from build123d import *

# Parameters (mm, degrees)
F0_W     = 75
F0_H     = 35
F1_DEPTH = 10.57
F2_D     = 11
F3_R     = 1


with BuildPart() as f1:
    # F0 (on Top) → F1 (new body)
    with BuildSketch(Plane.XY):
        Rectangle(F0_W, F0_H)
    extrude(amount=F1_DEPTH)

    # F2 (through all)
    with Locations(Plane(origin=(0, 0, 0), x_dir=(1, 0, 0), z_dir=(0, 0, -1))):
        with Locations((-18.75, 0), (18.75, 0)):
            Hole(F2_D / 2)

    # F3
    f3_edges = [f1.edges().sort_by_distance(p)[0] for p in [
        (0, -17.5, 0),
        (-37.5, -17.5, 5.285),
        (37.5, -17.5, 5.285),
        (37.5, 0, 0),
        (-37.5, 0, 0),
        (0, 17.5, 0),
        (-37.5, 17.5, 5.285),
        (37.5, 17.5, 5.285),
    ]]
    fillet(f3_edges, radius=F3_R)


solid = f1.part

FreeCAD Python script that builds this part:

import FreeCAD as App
import Part
import Sketcher
from FreeCAD import Vector


def edges_at(feature, points):
    """Names of the edges that pass closest to the given points."""
    edges = feature.Shape.Edges
    near = lambda p: min(range(len(edges)), key=lambda i: edges[i].distToShape(Part.Vertex(*p))[0])
    return sorted({f"Edge{near(p) + 1}" for p in points})


def add_polygon(sketch, points):
    """Adds a closed chain of lines whose ends are joined by coincident constraints."""
    first, n = sketch.GeometryCount, len(points)
    for a, b in zip(points, points[1:] + points[:1]):
        sketch.addGeometry(Part.LineSegment(App.Vector(*a, 0), App.Vector(*b, 0)), False)
    for i in range(n):
        sketch.addConstraint(Sketcher.Constraint("Coincident", first + i, 2, first + (i + 1) % n, 1))

doc = App.newDocument("Part")
body = doc.addObject("PartDesign::Body", "Body")

# Sketch on XY plane
sketch1 = body.newObject("Sketcher::SketchObject", "Sketch")
sketch1.AttachmentSupport = (doc.getObject("XY_Plane"), [""])
sketch1.MapMode = "FlatFace"
add_polygon(sketch1, [(-38, 18), (-38, -18), (38, -18), (38, 18)])  # lines 0-3
sketch1.addConstraint(Sketcher.Constraint("Vertical", 0))
sketch1.addConstraint(Sketcher.Constraint("Horizontal", 1))
sketch1.addConstraint(Sketcher.Constraint("Vertical", 2))
sketch1.addConstraint(Sketcher.Constraint("Horizontal", 3))
sketch1.addConstraint(Sketcher.Constraint("Symmetric", 0, 2, 2, 2, -1, 1))
sketch1.addConstraint(Sketcher.Constraint("DistanceX", 1, 1, 1, 2, 75.0))
sketch1.addConstraint(Sketcher.Constraint("DistanceY", 0, 2, 0, 1, 35.0))
pad1 = body.newObject("PartDesign::Pad", "Pad")
pad1.Profile = sketch1
pad1.Length = 10.57

# Sketch on XY plane
sketch2 = body.newObject("Sketcher::SketchObject", "Sketch001")
sketch2.AttachmentSupport = (doc.getObject("XY_Plane"), [""])
sketch2.MapMode = "FlatFace"
sketch2.addGeometry(Part.Circle(Vector(-19, 0, 0), Vector(0, 0, 1), 6), False)
sketch2.addGeometry(Part.Circle(Vector(19, 0, 0), Vector(0, 0, 1), 6), False)
sketch2.addConstraint(Sketcher.Constraint("Equal", 0, 1))
sketch2.addConstraint(Sketcher.Constraint("Symmetric", 0, 3, 1, 3, -1, 1))
sketch2.addConstraint(Sketcher.Constraint("PointOnObject", 0, 3, -1))
sketch2.addConstraint(Sketcher.Constraint("Diameter", 0, 11.0))
sketch2.addConstraint(Sketcher.Constraint("DistanceX", 0, 3, 1, 3, 37.5))
doc.recompute()
hole = body.newObject("PartDesign::Hole", "Hole")
hole.Profile = sketch2
hole.ThreadType = "None"
hole.Diameter = 11
hole.DepthType = "ThroughAll"
hole.Reversed = True
doc.recompute()

fillet = body.newObject("PartDesign::Fillet", "Fillet")
fillet.Base = (hole, edges_at(hole, [
    (0, -17.5, 0),
    (-37.5, -17.5, 5.285),
    (37.5, -17.5, 5.285),
    (37.5, 0, 0),
    (-37.5, 0, 0),
    (0, 17.5, 0),
    (-37.5, 17.5, 5.285),
    (37.5, 17.5, 5.285),
]))
fillet.Radius = 1

doc.recompute()
